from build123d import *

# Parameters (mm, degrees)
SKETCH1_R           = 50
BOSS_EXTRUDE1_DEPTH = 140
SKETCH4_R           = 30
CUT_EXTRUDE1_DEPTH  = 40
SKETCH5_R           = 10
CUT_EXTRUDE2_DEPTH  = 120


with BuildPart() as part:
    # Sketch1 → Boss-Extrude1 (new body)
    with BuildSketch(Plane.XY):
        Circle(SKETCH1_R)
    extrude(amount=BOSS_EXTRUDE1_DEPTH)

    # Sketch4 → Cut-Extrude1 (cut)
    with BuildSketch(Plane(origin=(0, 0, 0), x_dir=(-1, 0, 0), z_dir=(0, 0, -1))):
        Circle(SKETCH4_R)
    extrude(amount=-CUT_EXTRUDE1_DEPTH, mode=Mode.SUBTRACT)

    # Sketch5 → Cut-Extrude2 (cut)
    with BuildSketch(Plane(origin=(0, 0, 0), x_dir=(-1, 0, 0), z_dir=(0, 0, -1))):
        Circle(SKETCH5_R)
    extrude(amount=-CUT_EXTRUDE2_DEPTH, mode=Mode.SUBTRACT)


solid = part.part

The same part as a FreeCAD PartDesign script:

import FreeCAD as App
import Part
import Sketcher

V = App.Vector
Q = App.Units.Quantity

doc = App.newDocument("Part")
body = doc.addObject("PartDesign::Body", "Body")

# Sketch on XY plane
sketch1 = body.newObject("Sketcher::SketchObject", "Sketch")
sketch1.AttachmentSupport = (doc.getObject("XY_Plane"), [""])
sketch1.MapMode = "FlatFace"
sketch1.addGeometry(Part.Circle(V(0, 0, 0), V(0, 0, 1), 50), False)
sketch1.addConstraint(Sketcher.Constraint("Coincident", 0, 3, -1, 1))
sketch1.addConstraint(Sketcher.Constraint("Diameter", 0, Q("100 mm")))
pad1 = body.newObject("PartDesign::Pad", "Pad")
pad1.Profile = sketch1
pad1.Length = 140

# Sketch on XY plane
sketch2 = body.newObject("Sketcher::SketchObject", "Sketch001")
sketch2.AttachmentSupport = (doc.getObject("XY_Plane"), [""])
sketch2.MapMode = "FlatFace"
sketch2.addGeometry(Part.Circle(V(0, 0, 0), V(0, 0, 1), 30), False)
sketch2.addConstraint(Sketcher.Constraint("Coincident", 0, 3, -1, 1))
sketch2.addConstraint(Sketcher.Constraint("Diameter", 0, Q("60 mm")))
pocket1 = body.newObject("PartDesign::Pocket", "Pocket")
pocket1.Profile = sketch2
pocket1.Length = 40
pocket1.Reversed = True

# Sketch on XY plane
sketch3 = body.newObject("Sketcher::SketchObject", "Sketch002")
sketch3.AttachmentSupport = (doc.getObject("XY_Plane"), [""])
sketch3.MapMode = "FlatFace"
sketch3.addGeometry(Part.Circle(V(0, 0, 0), V(0, 0, 1), 10), False)
sketch3.addConstraint(Sketcher.Constraint("Coincident", 0, 3, -1, 1))
sketch3.addConstraint(Sketcher.Constraint("Diameter", 0, Q("20 mm")))
pocket2 = body.newObject("PartDesign::Pocket", "Pocket001")
pocket2.Profile = sketch3
pocket2.Length = 120
pocket2.Reversed = True

doc.recompute()
